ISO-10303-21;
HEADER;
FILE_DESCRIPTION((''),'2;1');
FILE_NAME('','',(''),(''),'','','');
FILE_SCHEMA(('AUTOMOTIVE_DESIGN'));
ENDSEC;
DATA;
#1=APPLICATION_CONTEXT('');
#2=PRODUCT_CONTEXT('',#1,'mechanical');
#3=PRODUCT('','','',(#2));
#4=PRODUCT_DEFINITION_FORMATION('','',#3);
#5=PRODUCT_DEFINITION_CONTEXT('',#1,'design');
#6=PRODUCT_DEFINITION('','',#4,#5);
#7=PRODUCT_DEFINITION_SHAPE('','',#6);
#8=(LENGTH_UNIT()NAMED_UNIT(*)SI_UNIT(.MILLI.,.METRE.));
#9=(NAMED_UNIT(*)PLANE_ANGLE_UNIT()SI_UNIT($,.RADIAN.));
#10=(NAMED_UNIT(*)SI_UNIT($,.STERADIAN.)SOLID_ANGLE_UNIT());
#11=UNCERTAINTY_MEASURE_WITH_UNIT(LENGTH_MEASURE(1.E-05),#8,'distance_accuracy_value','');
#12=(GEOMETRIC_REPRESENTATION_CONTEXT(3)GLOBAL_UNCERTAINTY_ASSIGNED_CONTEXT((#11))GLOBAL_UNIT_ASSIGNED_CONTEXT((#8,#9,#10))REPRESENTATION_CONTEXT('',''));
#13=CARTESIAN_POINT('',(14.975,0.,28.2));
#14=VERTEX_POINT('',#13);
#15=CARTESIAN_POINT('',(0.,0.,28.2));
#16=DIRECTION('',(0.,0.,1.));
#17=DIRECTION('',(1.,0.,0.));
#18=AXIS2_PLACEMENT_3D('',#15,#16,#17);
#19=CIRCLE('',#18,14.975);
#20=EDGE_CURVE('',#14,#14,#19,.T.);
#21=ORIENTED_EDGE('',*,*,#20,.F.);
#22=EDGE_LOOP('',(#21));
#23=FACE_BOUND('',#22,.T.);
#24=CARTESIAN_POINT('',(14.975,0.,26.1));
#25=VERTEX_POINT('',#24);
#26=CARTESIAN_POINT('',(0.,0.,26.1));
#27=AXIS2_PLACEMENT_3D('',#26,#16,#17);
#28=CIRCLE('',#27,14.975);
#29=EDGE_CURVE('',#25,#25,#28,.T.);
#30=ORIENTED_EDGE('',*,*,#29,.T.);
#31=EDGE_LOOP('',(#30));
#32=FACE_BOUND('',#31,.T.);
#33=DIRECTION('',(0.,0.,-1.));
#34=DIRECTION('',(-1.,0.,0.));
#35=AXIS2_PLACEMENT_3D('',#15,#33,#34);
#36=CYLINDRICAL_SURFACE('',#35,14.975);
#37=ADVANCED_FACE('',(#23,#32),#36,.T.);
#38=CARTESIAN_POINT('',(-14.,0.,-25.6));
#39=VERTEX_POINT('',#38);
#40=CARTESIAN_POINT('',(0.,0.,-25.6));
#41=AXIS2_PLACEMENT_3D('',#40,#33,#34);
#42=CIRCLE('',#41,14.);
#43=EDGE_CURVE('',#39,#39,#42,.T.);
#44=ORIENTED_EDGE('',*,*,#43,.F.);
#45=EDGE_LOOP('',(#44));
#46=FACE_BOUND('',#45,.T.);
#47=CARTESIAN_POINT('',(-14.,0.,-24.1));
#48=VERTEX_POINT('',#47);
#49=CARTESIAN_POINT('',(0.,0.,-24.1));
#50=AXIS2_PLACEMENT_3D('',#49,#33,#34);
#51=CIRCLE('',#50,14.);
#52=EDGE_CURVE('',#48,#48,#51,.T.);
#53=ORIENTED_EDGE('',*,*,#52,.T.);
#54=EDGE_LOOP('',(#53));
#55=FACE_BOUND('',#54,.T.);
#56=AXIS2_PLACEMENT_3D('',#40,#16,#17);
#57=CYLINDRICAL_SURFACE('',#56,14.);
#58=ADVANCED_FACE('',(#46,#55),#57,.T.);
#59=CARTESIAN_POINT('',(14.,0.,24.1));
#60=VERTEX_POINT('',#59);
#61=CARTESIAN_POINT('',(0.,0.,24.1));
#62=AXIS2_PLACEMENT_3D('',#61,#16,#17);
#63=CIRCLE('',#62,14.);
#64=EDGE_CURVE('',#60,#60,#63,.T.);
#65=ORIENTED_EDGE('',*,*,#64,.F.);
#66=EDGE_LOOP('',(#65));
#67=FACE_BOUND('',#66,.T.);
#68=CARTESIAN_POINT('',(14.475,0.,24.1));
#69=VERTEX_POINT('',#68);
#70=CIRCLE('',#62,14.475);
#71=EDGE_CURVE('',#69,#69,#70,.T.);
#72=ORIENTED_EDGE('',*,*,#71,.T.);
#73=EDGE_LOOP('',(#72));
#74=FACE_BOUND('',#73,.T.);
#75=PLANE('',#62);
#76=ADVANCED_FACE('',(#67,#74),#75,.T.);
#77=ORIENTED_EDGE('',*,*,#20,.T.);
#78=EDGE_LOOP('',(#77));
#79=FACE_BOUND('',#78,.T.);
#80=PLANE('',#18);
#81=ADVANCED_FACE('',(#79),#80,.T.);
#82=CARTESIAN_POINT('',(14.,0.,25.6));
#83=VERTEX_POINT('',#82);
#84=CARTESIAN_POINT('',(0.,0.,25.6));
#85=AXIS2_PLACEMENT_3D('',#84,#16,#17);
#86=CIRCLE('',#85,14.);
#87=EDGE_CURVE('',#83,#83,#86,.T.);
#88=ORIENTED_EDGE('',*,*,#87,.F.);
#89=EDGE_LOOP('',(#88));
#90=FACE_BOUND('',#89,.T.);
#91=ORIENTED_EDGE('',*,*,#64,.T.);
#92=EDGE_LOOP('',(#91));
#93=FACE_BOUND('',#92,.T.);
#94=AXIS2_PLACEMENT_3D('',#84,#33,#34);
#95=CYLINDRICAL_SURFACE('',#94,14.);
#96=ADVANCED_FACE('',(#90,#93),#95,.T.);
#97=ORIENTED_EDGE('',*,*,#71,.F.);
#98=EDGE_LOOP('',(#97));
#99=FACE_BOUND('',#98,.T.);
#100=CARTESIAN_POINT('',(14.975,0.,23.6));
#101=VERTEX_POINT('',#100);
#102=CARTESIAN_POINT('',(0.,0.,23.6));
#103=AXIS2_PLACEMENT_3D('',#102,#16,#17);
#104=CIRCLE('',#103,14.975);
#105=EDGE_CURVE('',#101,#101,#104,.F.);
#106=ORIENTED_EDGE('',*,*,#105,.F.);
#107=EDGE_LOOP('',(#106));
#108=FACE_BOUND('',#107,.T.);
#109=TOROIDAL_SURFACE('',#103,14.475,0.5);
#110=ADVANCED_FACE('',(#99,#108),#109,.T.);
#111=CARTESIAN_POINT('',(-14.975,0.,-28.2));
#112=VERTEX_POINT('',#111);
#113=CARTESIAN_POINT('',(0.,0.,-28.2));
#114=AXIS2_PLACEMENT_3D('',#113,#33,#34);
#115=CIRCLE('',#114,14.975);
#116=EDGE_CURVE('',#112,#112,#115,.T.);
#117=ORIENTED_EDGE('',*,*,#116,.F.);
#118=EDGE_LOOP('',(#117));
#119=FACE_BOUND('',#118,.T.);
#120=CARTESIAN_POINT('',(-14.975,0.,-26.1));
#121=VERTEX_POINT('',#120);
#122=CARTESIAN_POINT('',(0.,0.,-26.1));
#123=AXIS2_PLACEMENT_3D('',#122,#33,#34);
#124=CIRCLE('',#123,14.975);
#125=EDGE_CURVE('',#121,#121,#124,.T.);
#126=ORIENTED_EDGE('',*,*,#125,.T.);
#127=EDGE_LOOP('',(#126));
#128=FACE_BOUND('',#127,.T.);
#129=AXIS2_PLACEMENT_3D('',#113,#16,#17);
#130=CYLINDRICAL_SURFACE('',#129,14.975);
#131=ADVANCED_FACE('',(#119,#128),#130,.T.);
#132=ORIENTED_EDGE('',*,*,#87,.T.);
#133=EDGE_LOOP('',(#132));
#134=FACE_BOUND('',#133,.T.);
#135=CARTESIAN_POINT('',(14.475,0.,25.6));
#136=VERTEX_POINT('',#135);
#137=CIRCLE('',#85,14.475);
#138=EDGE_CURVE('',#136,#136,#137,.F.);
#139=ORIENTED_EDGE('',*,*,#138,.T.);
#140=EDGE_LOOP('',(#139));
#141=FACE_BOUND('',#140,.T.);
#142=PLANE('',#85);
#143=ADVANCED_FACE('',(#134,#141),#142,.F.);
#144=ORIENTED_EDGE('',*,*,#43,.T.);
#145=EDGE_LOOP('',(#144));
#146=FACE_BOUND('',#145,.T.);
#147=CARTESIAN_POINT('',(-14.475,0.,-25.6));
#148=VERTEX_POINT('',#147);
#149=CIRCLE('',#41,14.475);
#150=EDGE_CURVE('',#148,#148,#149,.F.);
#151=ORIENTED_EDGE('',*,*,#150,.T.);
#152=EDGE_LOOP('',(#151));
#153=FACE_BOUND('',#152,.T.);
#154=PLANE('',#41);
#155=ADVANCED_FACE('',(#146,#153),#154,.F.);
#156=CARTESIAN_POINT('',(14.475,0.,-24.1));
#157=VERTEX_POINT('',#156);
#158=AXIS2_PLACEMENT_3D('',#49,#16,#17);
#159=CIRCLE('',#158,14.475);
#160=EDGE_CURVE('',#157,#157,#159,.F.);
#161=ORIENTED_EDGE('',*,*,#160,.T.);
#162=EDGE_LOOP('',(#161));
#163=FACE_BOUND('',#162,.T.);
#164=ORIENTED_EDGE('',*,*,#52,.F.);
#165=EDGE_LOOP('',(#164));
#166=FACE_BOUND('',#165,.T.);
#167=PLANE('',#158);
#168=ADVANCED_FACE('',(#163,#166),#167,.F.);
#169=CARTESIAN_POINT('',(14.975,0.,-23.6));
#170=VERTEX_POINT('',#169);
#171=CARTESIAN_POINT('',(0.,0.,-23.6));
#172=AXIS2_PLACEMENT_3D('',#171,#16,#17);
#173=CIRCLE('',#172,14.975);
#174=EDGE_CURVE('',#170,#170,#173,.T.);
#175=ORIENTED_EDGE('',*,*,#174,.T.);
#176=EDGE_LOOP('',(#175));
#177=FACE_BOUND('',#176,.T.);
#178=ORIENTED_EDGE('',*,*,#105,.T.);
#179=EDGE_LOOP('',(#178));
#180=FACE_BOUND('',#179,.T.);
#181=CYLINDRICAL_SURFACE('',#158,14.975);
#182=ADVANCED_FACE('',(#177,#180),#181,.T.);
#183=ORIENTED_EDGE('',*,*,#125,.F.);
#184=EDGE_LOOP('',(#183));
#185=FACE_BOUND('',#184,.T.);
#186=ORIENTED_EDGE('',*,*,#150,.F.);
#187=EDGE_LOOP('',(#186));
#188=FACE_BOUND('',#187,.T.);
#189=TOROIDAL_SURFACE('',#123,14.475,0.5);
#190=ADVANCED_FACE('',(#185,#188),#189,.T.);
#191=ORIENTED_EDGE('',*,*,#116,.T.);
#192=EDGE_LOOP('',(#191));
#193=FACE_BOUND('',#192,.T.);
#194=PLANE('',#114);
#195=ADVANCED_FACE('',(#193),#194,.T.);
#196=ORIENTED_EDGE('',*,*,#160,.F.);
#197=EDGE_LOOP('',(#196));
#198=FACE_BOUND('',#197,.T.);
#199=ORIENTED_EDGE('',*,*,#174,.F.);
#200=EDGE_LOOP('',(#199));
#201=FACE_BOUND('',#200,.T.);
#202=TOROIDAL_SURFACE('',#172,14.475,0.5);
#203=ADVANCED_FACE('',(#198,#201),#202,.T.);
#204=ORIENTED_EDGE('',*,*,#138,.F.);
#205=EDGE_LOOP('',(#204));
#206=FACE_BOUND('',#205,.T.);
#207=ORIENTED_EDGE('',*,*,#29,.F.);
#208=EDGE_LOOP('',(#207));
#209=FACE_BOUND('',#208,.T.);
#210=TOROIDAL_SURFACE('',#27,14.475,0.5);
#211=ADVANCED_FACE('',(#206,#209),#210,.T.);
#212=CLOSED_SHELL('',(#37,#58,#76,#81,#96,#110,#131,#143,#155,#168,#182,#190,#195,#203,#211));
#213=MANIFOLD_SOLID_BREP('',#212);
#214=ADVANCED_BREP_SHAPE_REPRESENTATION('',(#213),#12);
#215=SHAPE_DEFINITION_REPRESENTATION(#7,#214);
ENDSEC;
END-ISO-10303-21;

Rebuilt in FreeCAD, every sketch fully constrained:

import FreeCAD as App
import Part
import Sketcher
Q = App.Units.Quantity


def edges_at(feature, points):
    """Names of the edges that pass closest to the given points."""
    edges = feature.Shape.Edges
    near = lambda p: min(range(len(edges)), key=lambda i: edges[i].distToShape(Part.Vertex(*p))[0])
    return sorted({f"Edge{near(p) + 1}" for p in points})

doc = App.newDocument("Part")
body = doc.addObject("PartDesign::Body", "Body")

# Sketch on XY plane
sketch1 = doc.addObject("Sketcher::SketchObject", "Sketch")
body.addObject(sketch1)
sketch1.AttachmentSupport = (doc.XY_Plane, [""])
sketch1.MapMode = "FlatFace"
sketch1.addGeometry(Part.Circle(App.Vector(0, 0, 0), App.Vector(0, 0, 1), 15), False)
sketch1.addConstraint([
    Sketcher.Constraint("Coincident", 0, 3, -1, 1),
    Sketcher.Constraint("Diameter", 0, Q("29.95 mm")),
])
pad1 = doc.addObject("PartDesign::Pad", "Pad")
body.addObject(pad1)
pad1.Profile = sketch1
pad1.Type = "TwoLengths"
pad1.Length = 24.1
pad1.Length2 = 24.1

# Sketch on XY plane
sketch2 = doc.addObject("Sketcher::SketchObject", "Sketch001")
body.addObject(sketch2)
sketch2.AttachmentSupport = (doc.XY_Plane, [""])
sketch2.MapMode = "FlatFace"
sketch2.AttachmentOffset = App.Placement(App.Vector(0, 0, 24.1), App.Rotation())
sketch2.addGeometry(Part.Circle(App.Vector(0, 0, 0), App.Vector(0, 0, 1), 14), False)
sketch2.addConstraint([
    Sketcher.Constraint("Coincident", 0, 3, -1, 1),
    Sketcher.Constraint("Diameter", 0, Q("28 mm")),
])
pad2 = doc.addObject("PartDesign::Pad", "Pad001")
body.addObject(pad2)
pad2.Profile = sketch2
pad2.Length = 1.5

# Sketch on XY plane
sketch3 = doc.addObject("Sketcher::SketchObject", "Sketch002")
body.addObject(sketch3)
sketch3.AttachmentSupport = (doc.XY_Plane, [""])
sketch3.MapMode = "FlatFace"
sketch3.AttachmentOffset = App.Placement(App.Vector(0, 0, 25.6), App.Rotation())
sketch3.addGeometry(Part.Circle(App.Vector(0, 0, 0), App.Vector(0, 0, 1), 15), False)
sketch3.addConstraint([
    Sketcher.Constraint("Coincident", 0, 3, -1, 1),
    Sketcher.Constraint("Diameter", 0, Q("29.95 mm")),
])
pad3 = doc.addObject("PartDesign::Pad", "Pad002")
body.addObject(pad3)
pad3.Profile = sketch3
pad3.Length = 2.6

# Sketch on XY plane
sketch4 = doc.addObject("Sketcher::SketchObject", "Sketch003")
body.addObject(sketch4)
sketch4.AttachmentSupport = (doc.XY_Plane, [""])
sketch4.MapMode = "FlatFace"
sketch4.AttachmentOffset = App.Placement(App.Vector(0, 0, -25.6), App.Rotation())
sketch4.addGeometry(Part.Circle(App.Vector(0, 0, 0), App.Vector(0, 0, 1), 14), False)
sketch4.addConstraint([
    Sketcher.Constraint("Coincident", 0, 3, -1, 1),
    Sketcher.Constraint("Diameter", 0, Q("28 mm")),
])
pad4 = doc.addObject("PartDesign::Pad", "Pad003")
body.addObject(pad4)
pad4.Profile = sketch4
pad4.Length = 1.5

# Sketch on XY plane
sketch5 = doc.addObject("Sketcher::SketchObject", "Sketch004")
body.addObject(sketch5)
sketch5.AttachmentSupport = (doc.XY_Plane, [""])
sketch5.MapMode = "FlatFace"
sketch5.AttachmentOffset = App.Placement(App.Vector(0, 0, -28.2), App.Rotation())
sketch5.addGeometry(Part.Circle(App.Vector(0, 0, 0), App.Vector(0, 0, 1), 15), False)
sketch5.addConstraint([
    Sketcher.Constraint("Coincident", 0, 3, -1, 1),
    Sketcher.Constraint("Diameter", 0, Q("29.95 mm")),
])
pad5 = doc.addObject("PartDesign::Pad", "Pad004")
body.addObject(pad5)
pad5.Profile = sketch5
pad5.Length = 2.6
doc.recompute()

fillet = doc.addObject("PartDesign::Fillet", "Fillet")
body.addObject(fillet)
fillet.Base = (pad5, edges_at(pad5, [(-14.975, 0, 25.6)]))
fillet.Radius = 0.5
doc.recompute()

fillet2 = doc.addObject("PartDesign::Fillet", "Fillet001")
body.addObject(fillet2)
fillet2.Base = (fillet, edges_at(fillet, [(-14.975, 0, -25.6), (-14.975, 0, 24.1), (-14.975, 0, -24.1)]))
fillet2.Radius = 0.5

doc.recompute()
